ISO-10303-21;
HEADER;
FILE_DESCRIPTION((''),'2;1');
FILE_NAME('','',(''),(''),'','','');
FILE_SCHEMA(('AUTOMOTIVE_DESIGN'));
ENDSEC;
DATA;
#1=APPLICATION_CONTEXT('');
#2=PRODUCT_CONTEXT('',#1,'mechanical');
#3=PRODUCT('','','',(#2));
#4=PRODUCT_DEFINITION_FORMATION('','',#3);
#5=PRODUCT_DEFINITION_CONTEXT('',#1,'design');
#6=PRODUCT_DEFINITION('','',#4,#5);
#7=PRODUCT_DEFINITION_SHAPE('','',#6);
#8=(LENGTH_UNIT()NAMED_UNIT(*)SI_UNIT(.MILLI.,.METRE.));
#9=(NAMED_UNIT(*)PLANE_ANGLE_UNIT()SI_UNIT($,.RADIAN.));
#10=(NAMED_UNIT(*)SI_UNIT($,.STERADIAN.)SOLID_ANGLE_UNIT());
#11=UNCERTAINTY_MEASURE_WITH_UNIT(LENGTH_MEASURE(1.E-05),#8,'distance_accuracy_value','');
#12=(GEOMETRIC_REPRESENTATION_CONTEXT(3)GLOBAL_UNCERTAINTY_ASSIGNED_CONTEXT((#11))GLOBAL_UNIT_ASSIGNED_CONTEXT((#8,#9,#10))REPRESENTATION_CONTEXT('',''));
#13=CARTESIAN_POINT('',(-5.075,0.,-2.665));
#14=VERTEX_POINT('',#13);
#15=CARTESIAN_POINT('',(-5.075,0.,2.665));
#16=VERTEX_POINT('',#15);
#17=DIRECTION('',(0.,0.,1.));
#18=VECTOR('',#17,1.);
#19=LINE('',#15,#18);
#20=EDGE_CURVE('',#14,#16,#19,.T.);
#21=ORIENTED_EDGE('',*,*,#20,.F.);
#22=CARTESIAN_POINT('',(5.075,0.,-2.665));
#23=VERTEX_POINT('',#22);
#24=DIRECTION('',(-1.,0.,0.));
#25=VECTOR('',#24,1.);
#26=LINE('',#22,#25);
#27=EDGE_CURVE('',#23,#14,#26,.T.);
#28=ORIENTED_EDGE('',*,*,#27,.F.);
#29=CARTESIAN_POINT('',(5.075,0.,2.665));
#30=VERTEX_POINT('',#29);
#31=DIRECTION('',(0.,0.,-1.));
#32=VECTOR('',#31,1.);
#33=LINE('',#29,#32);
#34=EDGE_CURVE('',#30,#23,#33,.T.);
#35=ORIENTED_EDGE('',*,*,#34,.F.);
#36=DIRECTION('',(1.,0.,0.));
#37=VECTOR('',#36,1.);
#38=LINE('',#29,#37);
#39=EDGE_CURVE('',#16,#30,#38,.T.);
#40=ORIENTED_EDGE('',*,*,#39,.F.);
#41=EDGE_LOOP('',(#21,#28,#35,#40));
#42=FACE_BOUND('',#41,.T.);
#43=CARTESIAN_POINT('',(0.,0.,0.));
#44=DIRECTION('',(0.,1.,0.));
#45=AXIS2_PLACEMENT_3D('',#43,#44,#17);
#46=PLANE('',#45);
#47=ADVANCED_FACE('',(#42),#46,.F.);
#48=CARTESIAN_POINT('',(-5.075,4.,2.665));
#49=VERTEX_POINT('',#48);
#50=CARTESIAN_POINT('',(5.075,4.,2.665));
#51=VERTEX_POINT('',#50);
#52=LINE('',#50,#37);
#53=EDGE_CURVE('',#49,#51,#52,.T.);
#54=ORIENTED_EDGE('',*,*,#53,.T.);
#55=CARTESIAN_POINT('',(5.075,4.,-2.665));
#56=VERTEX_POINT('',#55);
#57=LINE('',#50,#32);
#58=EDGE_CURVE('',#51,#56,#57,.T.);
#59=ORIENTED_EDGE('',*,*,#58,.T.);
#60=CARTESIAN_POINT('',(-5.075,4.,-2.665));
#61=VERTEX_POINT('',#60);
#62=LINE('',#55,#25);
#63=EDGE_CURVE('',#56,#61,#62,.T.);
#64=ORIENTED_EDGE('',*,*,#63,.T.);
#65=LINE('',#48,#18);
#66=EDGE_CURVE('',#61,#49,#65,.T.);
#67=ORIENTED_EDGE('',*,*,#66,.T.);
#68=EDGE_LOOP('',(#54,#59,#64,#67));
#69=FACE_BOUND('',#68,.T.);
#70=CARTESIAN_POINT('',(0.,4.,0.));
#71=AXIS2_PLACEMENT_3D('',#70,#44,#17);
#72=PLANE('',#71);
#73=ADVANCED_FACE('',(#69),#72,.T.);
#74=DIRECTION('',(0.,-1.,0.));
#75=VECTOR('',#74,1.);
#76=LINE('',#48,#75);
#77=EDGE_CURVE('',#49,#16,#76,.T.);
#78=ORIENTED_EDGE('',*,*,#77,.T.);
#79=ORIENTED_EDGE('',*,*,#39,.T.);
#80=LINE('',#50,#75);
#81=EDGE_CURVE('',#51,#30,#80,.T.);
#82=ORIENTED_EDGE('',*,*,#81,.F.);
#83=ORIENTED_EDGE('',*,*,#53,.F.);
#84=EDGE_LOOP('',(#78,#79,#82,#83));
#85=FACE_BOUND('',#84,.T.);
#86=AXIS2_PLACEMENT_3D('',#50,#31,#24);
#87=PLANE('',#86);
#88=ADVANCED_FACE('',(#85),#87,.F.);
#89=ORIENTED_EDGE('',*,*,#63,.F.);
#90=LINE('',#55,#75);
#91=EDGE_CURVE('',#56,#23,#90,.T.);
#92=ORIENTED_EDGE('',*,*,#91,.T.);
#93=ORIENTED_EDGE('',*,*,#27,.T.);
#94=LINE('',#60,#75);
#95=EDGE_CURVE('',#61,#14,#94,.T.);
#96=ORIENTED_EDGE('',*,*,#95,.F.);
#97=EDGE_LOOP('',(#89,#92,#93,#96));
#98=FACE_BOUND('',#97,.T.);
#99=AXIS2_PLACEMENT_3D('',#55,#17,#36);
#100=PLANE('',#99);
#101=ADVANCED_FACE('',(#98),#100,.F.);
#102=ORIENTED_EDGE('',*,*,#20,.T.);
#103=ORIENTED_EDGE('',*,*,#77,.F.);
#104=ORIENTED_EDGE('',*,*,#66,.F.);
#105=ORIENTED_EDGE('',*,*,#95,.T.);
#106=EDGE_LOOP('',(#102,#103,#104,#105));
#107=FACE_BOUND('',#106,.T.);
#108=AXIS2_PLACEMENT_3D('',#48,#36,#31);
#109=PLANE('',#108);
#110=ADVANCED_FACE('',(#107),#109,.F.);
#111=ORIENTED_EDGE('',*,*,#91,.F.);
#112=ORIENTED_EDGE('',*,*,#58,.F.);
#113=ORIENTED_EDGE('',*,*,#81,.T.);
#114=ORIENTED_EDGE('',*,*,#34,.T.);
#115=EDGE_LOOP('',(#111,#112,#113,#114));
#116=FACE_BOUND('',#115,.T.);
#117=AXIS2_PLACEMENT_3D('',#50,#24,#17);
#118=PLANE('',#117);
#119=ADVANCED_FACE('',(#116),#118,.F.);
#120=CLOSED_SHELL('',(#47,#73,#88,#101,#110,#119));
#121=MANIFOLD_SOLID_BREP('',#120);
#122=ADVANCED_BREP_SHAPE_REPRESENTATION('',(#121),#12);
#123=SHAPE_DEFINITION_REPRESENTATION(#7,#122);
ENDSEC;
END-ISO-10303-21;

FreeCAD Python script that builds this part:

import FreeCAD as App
import Part
import Sketcher


def add_polygon(sketch, points):
    """Adds a closed chain of lines whose ends are joined by coincident constraints."""
    first, n = sketch.GeometryCount, len(points)
    for a, b in zip(points, points[1:] + points[:1]):
        sketch.addGeometry(Part.LineSegment(App.Vector(*a, 0), App.Vector(*b, 0)), False)
    for i in range(n):
        sketch.addConstraint(Sketcher.Constraint("Coincident", first + i, 2, first + (i + 1) % n, 1))

doc = App.newDocument("Part")
params = doc.addObject("Spreadsheet::Sheet", "Params")
for row, (alias, value) in enumerate([
    ("sketch1_width", "10.15 mm"),
    ("sketch1_height", "5.33 mm"),
    ("pad1_length", "4 mm"),
], start=1):
    params.set(f"A{row}", alias)
    params.set(f"B{row}", "=" + value)
    params.setAlias(f"B{row}", alias)

body = doc.addObject("PartDesign::Body", "Body")

sketch1 = body.newObject("Sketcher::SketchObject", "Sketch")
sketch1.AttachmentSupport = (doc.getObject("XZ_Plane"), [""])
sketch1.MapMode = "FlatFace"
add_polygon(sketch1, [(-5, -3), (-5, 3), (5, 3), (5, -3)])
sketch1.addConstraint(Sketcher.Constraint("Vertical", 0))
sketch1.addConstraint(Sketcher.Constraint("Horizontal", 1))
sketch1.addConstraint(Sketcher.Constraint("Vertical", 2))
sketch1.addConstraint(Sketcher.Constraint("Horizontal", 3))
sketch1.addConstraint(Sketcher.Constraint("Symmetric", 0, 2, 2, 2, -1, 1))
sketch1.addConstraint(Sketcher.Constraint("DistanceX", 1, 1, 1, 2, 10.15))
sketch1.addConstraint(Sketcher.Constraint("DistanceY", 0, 1, 0, 2, 5.33))
sketch1.setExpression("Constraints[9]", "Params.sketch1_width")
sketch1.setExpression("Constraints[10]", "Params.sketch1_height")
pad1 = body.newObject("PartDesign::Pad", "Pad")
pad1.Profile = sketch1
pad1.setExpression("Length", "Params.pad1_length")
pad1.Reversed = True

doc.recompute()
